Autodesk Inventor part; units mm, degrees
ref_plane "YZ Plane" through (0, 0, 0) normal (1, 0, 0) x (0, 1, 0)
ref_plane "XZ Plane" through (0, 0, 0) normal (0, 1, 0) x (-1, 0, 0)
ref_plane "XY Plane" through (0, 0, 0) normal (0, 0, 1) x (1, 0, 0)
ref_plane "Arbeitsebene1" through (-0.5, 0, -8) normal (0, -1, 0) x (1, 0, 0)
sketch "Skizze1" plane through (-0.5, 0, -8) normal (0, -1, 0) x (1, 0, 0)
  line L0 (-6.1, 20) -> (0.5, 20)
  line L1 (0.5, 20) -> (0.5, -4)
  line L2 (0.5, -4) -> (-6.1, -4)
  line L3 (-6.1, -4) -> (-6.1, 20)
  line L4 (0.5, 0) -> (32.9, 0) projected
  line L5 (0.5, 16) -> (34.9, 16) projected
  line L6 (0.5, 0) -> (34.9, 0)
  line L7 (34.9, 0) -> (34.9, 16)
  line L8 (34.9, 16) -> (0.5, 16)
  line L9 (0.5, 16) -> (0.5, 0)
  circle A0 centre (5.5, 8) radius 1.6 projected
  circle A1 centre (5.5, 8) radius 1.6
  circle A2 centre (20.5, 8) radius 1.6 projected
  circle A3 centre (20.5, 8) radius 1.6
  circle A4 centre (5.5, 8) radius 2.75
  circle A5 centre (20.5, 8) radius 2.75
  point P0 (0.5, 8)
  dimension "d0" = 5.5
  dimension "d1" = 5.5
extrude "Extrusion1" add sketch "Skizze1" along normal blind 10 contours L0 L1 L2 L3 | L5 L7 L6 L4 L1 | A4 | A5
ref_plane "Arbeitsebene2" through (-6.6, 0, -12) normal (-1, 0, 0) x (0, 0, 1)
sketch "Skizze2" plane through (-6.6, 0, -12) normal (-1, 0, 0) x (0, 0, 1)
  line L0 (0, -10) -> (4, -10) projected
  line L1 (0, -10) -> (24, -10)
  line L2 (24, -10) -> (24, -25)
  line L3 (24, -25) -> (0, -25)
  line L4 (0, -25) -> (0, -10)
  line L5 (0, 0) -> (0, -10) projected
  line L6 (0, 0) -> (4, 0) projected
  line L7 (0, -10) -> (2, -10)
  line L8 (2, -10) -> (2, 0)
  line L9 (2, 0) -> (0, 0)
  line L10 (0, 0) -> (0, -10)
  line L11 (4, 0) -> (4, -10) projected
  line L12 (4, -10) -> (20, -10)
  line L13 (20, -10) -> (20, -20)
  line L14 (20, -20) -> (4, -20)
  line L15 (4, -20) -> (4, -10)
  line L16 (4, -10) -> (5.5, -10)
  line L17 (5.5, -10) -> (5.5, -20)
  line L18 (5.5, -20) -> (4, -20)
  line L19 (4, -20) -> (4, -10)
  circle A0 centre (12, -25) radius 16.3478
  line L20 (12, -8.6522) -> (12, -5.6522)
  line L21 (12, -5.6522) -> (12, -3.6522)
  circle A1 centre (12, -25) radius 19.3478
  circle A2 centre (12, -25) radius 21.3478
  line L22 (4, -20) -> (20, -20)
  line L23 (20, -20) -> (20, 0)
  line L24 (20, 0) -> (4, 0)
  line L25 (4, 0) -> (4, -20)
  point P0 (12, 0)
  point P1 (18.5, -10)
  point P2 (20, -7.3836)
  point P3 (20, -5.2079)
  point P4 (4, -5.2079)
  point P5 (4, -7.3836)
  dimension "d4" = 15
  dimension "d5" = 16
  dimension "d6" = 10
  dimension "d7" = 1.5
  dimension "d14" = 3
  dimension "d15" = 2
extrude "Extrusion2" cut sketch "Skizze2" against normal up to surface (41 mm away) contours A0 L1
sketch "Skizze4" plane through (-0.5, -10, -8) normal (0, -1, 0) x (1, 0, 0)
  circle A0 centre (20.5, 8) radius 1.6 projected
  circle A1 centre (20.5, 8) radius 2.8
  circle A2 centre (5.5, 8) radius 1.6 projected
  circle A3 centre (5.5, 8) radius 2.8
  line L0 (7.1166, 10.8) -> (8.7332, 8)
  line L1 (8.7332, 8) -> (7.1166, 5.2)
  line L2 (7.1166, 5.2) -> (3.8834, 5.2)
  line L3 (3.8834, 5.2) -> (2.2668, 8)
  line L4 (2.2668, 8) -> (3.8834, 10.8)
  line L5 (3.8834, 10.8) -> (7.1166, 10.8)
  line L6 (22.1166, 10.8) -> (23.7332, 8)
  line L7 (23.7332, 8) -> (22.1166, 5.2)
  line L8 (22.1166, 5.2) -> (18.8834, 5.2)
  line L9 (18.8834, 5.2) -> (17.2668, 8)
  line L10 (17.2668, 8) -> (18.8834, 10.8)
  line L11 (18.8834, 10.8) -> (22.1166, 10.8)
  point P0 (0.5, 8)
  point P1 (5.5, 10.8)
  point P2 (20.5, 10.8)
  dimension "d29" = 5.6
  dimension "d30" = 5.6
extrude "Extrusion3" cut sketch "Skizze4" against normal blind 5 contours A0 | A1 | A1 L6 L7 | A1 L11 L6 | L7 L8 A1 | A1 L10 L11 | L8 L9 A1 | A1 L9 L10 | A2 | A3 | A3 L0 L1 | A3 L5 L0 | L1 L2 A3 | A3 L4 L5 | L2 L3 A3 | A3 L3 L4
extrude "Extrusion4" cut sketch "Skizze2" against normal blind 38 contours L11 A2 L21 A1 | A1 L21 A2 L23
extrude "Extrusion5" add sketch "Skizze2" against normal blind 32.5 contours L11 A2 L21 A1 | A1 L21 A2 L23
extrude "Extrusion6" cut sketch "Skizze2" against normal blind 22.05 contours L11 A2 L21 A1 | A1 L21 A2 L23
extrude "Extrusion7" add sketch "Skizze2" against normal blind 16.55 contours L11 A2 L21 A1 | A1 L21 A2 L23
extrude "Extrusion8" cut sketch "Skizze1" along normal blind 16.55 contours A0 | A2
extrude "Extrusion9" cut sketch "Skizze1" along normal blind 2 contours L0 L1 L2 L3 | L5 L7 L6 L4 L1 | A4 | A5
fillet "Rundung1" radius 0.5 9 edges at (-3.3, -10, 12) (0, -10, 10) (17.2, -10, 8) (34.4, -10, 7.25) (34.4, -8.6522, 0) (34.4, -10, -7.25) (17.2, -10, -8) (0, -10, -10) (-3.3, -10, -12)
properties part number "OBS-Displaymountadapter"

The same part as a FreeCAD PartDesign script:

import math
import FreeCAD as App
import Part
import Sketcher
from FreeCAD import Vector
Q = App.Units.Quantity


def edges_at(feature, points):
    """Names of the edges that pass closest to the given points."""
    edges = feature.Shape.Edges
    near = lambda p: min(range(len(edges)), key=lambda i: edges[i].distToShape(Part.Vertex(*p))[0])
    return sorted({f"Edge{near(p) + 1}" for p in points})


def add_polygon(sketch, points):
    """Adds a closed chain of lines whose ends are joined by coincident constraints."""
    first, n = sketch.GeometryCount, len(points)
    for a, b in zip(points, points[1:] + points[:1]):
        sketch.addGeometry(Part.LineSegment(App.Vector(*a, 0), App.Vector(*b, 0)), False)
    for i in range(n):
        sketch.addConstraint(Sketcher.Constraint("Coincident", first + i, 2, first + (i + 1) % n, 1))

doc = App.newDocument("Part")
params = doc.addObject("Spreadsheet::Sheet", "Params")
for row, (alias, value) in enumerate([
    ("sketch1_diameter", "3.2 mm"),
    ("sketch1_height", "24 mm"),
    ("sketch1_height2", "4 mm"),
    ("sketch1_width", "6.6 mm"),
    ("sketch1_width2", "34.4 mm"),
    ("pad1_length", "10 mm"),
    ("sketch2_width", "15 mm"),
    ("sketch2_height", "13 mm"),
    ("pocket1_length", "41 mm"),
    ("pocket2_length", "5 mm"),
    ("pocket3_length", "38 mm"),
    ("pad2_length", "32.5 mm"),
    ("pocket4_length", "22.05 mm"),
    ("pad3_length", "16.55 mm"),
    ("sketch8_diameter", "3.2 mm"),
    ("pocket5_length", "16.55 mm"),
    ("sketch9_diameter", "3.2 mm"),
    ("sketch9_height", "24 mm"),
    ("sketch9_height2", "4 mm"),
    ("sketch9_width", "6.6 mm"),
    ("sketch9_width2", "34.4 mm"),
    ("pocket6_length", "2 mm"),
    ("fillet_radius", "0.5 mm"),
], start=1):
    params.set(f"A{row}", alias)
    params.set(f"B{row}", "=" + value)
    params.setAlias(f"B{row}", alias)

body = doc.addObject("PartDesign::Body", "Body")

sketch1 = body.newObject("Sketcher::SketchObject", "Sketch")
sketch1.AttachmentSupport = (doc.getObject("XZ_Plane"), [""])
sketch1.MapMode = "FlatFace"
add_polygon(sketch1, [(0, 12), (-6.6, 12), (-6.6, -12), (0, -12), (0, -8), (34.4, -8), (34.4, 8), (0, 8)])
sketch1.addGeometry(Part.Circle(Vector(20, 0, 0), Vector(0, 0, 1), 1.6), False)
sketch1.addGeometry(Part.Circle(Vector(5, 0, 0), Vector(0, 0, 1), 1.6), False)
sketch1.addConstraint(Sketcher.Constraint("Horizontal", 0))
sketch1.addConstraint(Sketcher.Constraint("Vertical", 1))
sketch1.addConstraint(Sketcher.Constraint("Horizontal", 2))
sketch1.addConstraint(Sketcher.Constraint("Vertical", 3))
sketch1.addConstraint(Sketcher.Constraint("Horizontal", 4))
sketch1.addConstraint(Sketcher.Constraint("Vertical", 5))
sketch1.addConstraint(Sketcher.Constraint("Horizontal", 6))
sketch1.addConstraint(Sketcher.Constraint("Vertical", 7))
sketch1.addConstraint(Sketcher.Constraint("Equal", 8, 9))
sketch1.addConstraint(Sketcher.Constraint("Symmetric", 3, 2, 6, 2, -1, 1))
sketch1.addConstraint(Sketcher.Constraint("Symmetric", 2, 2, 7, 2, -1))
sketch1.addConstraint(Sketcher.Constraint("PointOnObject", 8, 3, -1))
sketch1.addConstraint(Sketcher.Constraint("PointOnObject", 9, 3, -1))
sketch1.addConstraint(Sketcher.Constraint("Diameter", 8, 3.2))
sketch1.addConstraint(Sketcher.Constraint("DistanceY", 1, 2, 1, 1, 24.0))
sketch1.addConstraint(Sketcher.Constraint("DistanceY", 3, 1, 3, 2, 4.0))
sketch1.addConstraint(Sketcher.Constraint("DistanceX", 0, 2, 0, 1, 6.6))
sketch1.addConstraint(Sketcher.Constraint("DistanceX", 4, 1, 4, 2, 34.4))
sketch1.addConstraint(Sketcher.Constraint("DistanceX", -1, 1, 8, 3, 20.0))
sketch1.addConstraint(Sketcher.Constraint("DistanceX", -1, 1, 9, 3, 5.0))
sketch1.setExpression("Constraints[21]", "Params.sketch1_diameter")
sketch1.setExpression("Constraints[22]", "Params.sketch1_height")
sketch1.setExpression("Constraints[23]", "Params.sketch1_height2")
sketch1.setExpression("Constraints[24]", "Params.sketch1_width")
sketch1.setExpression("Constraints[25]", "Params.sketch1_width2")
pad1 = body.newObject("PartDesign::Pad", "Pad")
pad1.Profile = sketch1
pad1.setExpression("Length", "Params.pad1_length")

sketch2 = body.newObject("Sketcher::SketchObject", "Sketch001")
sketch2.AttachmentSupport = (doc.getObject("YZ_Plane"), [""])
sketch2.MapMode = "FlatFace"
sketch2.AttachmentOffset = App.Placement(Vector(0, 0, -6.6), App.Rotation())
sketch2.addGeometry(Part.ArcOfCircle(Part.Circle(Vector(-25, 0, 0), Vector(0, 0, 1), 16), math.radians(-23), math.radians(23)), False)
sketch2.addGeometry(Part.LineSegment(Vector(-10, 7, 0), Vector(-10, -6, 0)), False)
sketch2.addConstraint(Sketcher.Constraint("Coincident", 0, 1, 1, 2))
sketch2.addConstraint(Sketcher.Constraint("Coincident", 1, 1, 0, 2))
sketch2.addConstraint(Sketcher.Constraint("Vertical", 1))
sketch2.addConstraint(Sketcher.Constraint("PointOnObject", 0, 3, -1))
sketch2.addConstraint(Sketcher.Constraint("DistanceX", 0, 1, -1, 1, 10.0))
sketch2.addConstraint(Sketcher.Constraint("DistanceX", 0, 3, 0, 1, 15.0))
sketch2.addConstraint(Sketcher.Constraint("DistanceY", 1, 2, 1, 1, 13.0))
sketch2.setExpression("Constraints[5]", "Params.sketch2_width")
sketch2.setExpression("Constraints[6]", "Params.sketch2_height")
pocket1 = body.newObject("PartDesign::Pocket", "Pocket")
pocket1.Profile = sketch2
pocket1.setExpression("Length", "Params.pocket1_length")
pocket1.Reversed = True

sketch3 = body.newObject("Sketcher::SketchObject", "Sketch002")
sketch3.AttachmentSupport = (doc.getObject("XZ_Plane"), [""])
sketch3.MapMode = "FlatFace"
sketch3.AttachmentOffset = App.Placement(Vector(0, 0, 10), App.Rotation())
add_polygon(sketch3, [(23.2, 0), (21.6, 2.8), (18.4, 2.8), (16.8, 0), (18.4, -2.8), (21.6, -2.8)])
add_polygon(sketch3, [(8.2, 0), (6.6, 2.8), (3.4, 2.8), (1.8, 0), (3.4, -2.8), (6.6, -2.8)])
sketch3.addConstraint(Sketcher.Constraint("Horizontal", 1))
sketch3.addConstraint(Sketcher.Constraint("Horizontal", 4))
sketch3.addConstraint(Sketcher.Constraint("Horizontal", 7))
sketch3.addConstraint(Sketcher.Constraint("Horizontal", 10))
sketch3.addConstraint(Sketcher.Constraint("Symmetric", 1, 2, 3, 2, -1))
sketch3.addConstraint(Sketcher.Constraint("Symmetric", 7, 2, 9, 2, -1))
sketch3.addConstraint(Sketcher.Constraint("PointOnObject", 2, 2, -1))
sketch3.addConstraint(Sketcher.Constraint("PointOnObject", 5, 2, -1))
sketch3.addConstraint(Sketcher.Constraint("PointOnObject", 8, 2, -1))
sketch3.addConstraint(Sketcher.Constraint("PointOnObject", 11, 2, -1))
sketch3.addConstraint(Sketcher.Constraint("Parallel", 0, 3))
sketch3.addConstraint(Sketcher.Constraint("Parallel", 2, 5))
sketch3.addConstraint(Sketcher.Constraint("Parallel", 3, 6))
sketch3.addConstraint(Sketcher.Constraint("Parallel", 5, 8))
sketch3.addConstraint(Sketcher.Constraint("Parallel", 8, 11))
sketch3.addConstraint(Sketcher.Constraint("Horizontal", 1, 2, 6, 2))
sketch3.addConstraint(Sketcher.Constraint("Equal", 4, 7))
sketch3.addConstraint(Sketcher.Constraint("DistanceY", 3, 2, 1, 2, 5.6))
sketch3.addConstraint(Sketcher.Constraint("Angle", 0, Q("120.0003 deg")))
sketch3.addConstraint(Sketcher.Constraint("DistanceX", 6, 2, 0, 2, 15.0))
sketch3.addConstraint(Sketcher.Constraint("DistanceX", 1, 2, 1, 1, 3.2332))
sketch3.addConstraint(Sketcher.Constraint("DistanceX", -1, 1, 0, 2, 21.6166))
pocket2 = body.newObject("PartDesign::Pocket", "Pocket001")
pocket2.Profile = sketch3
pocket2.setExpression("Length", "Params.pocket2_length")

sketch4 = body.newObject("Sketcher::SketchObject", "Sketch003")
sketch4.AttachmentSupport = (doc.getObject("YZ_Plane"), [""])
sketch4.MapMode = "FlatFace"
sketch4.AttachmentOffset = App.Placement(Vector(0, 0, -6.6), App.Rotation())
sketch4.addGeometry(Part.LineSegment(Vector(-5.2, -8, 0), Vector(-7.4, -8, 0)), False)
sketch4.addGeometry(Part.ArcOfCircle(Part.Circle(Vector(-25, 0, 0), Vector(0, 0, 1), 19.3), math.radians(-24), math.radians(24)), False)
sketch4.addGeometry(Part.LineSegment(Vector(-7.4, 8, 0), Vector(-5.2, 8, 0)), False)
sketch4.addGeometry(Part.ArcOfCircle(Part.Circle(Vector(-25, 0, 0), Vector(0, 0, 1), 21.3), math.radians(-22), math.radians(22)), False)
sketch4.addConstraint(Sketcher.Constraint("Coincident", 0, 2, 1, 1))
sketch4.addConstraint(Sketcher.Constraint("Coincident", 1, 2, 2, 1))
sketch4.addConstraint(Sketcher.Constraint("Coincident", 2, 2, 3, 2))
sketch4.addConstraint(Sketcher.Constraint("Coincident", 3, 1, 0, 1))
sketch4.addConstraint(Sketcher.Constraint("Horizontal", 0))
sketch4.addConstraint(Sketcher.Constraint("Horizontal", 2))
sketch4.addConstraint(Sketcher.Constraint("Coincident", 3, 3, 1, 3))
sketch4.addConstraint(Sketcher.Constraint("Symmetric", 0, 2, 1, 2, -1))
sketch4.addConstraint(Sketcher.Constraint("DistanceY", 0, 2, 1, 2, 16.0))
sketch4.addConstraint(Sketcher.Constraint("DistanceX", 1, 3, -1, 1, 25.0))
sketch4.addConstraint(Sketcher.Constraint("Radius", 1, 19.3478))
sketch4.addConstraint(Sketcher.Constraint("Radius", 3, 21.3478))
pocket3 = body.newObject("PartDesign::Pocket", "Pocket002")
pocket3.Profile = sketch4
pocket3.setExpression("Length", "Params.pocket3_length")
pocket3.Reversed = True

sketch5 = body.newObject("Sketcher::SketchObject", "Sketch004")
sketch5.AttachmentSupport = (doc.getObject("YZ_Plane"), [""])
sketch5.MapMode = "FlatFace"
sketch5.AttachmentOffset = App.Placement(Vector(0, 0, -6.6), App.Rotation())
sketch5.addGeometry(Part.LineSegment(Vector(-5.2, -8, 0), Vector(-7.4, -8, 0)), False)
sketch5.addGeometry(Part.ArcOfCircle(Part.Circle(Vector(-25, 0, 0), Vector(0, 0, 1), 19.3), math.radians(-24), math.radians(24)), False)
sketch5.addGeometry(Part.LineSegment(Vector(-7.4, 8, 0), Vector(-5.2, 8, 0)), False)
sketch5.addGeometry(Part.ArcOfCircle(Part.Circle(Vector(-25, 0, 0), Vector(0, 0, 1), 21.3), math.radians(-22), math.radians(22)), False)
sketch5.addConstraint(Sketcher.Constraint("Coincident", 0, 2, 1, 1))
sketch5.addConstraint(Sketcher.Constraint("Coincident", 1, 2, 2, 1))
sketch5.addConstraint(Sketcher.Constraint("Coincident", 2, 2, 3, 2))
sketch5.addConstraint(Sketcher.Constraint("Coincident", 3, 1, 0, 1))
sketch5.addConstraint(Sketcher.Constraint("Horizontal", 0))
sketch5.addConstraint(Sketcher.Constraint("Horizontal", 2))
sketch5.addConstraint(Sketcher.Constraint("Coincident", 3, 3, 1, 3))
sketch5.addConstraint(Sketcher.Constraint("Symmetric", 0, 2, 1, 2, -1))
sketch5.addConstraint(Sketcher.Constraint("DistanceY", 0, 2, 1, 2, 16.0))
sketch5.addConstraint(Sketcher.Constraint("DistanceX", 1, 3, -1, 1, 25.0))
sketch5.addConstraint(Sketcher.Constraint("Radius", 1, 19.3478))
sketch5.addConstraint(Sketcher.Constraint("Radius", 3, 21.3478))
pad2 = body.newObject("PartDesign::Pad", "Pad001")
pad2.Profile = sketch5
pad2.setExpression("Length", "Params.pad2_length")

sketch6 = body.newObject("Sketcher::SketchObject", "Sketch005")
sketch6.AttachmentSupport = (doc.getObject("YZ_Plane"), [""])
sketch6.MapMode = "FlatFace"
sketch6.AttachmentOffset = App.Placement(Vector(0, 0, -6.6), App.Rotation())
sketch6.addGeometry(Part.LineSegment(Vector(-5.2, -8, 0), Vector(-7.4, -8, 0)), False)
sketch6.addGeometry(Part.ArcOfCircle(Part.Circle(Vector(-25, 0, 0), Vector(0, 0, 1), 19.3), math.radians(-24), math.radians(24)), False)
sketch6.addGeometry(Part.LineSegment(Vector(-7.4, 8, 0), Vector(-5.2, 8, 0)), False)
sketch6.addGeometry(Part.ArcOfCircle(Part.Circle(Vector(-25, 0, 0), Vector(0, 0, 1), 21.3), math.radians(-22), math.radians(22)), False)
sketch6.addConstraint(Sketcher.Constraint("Coincident", 0, 2, 1, 1))
sketch6.addConstraint(Sketcher.Constraint("Coincident", 1, 2, 2, 1))
sketch6.addConstraint(Sketcher.Constraint("Coincident", 2, 2, 3, 2))
sketch6.addConstraint(Sketcher.Constraint("Coincident", 3, 1, 0, 1))
sketch6.addConstraint(Sketcher.Constraint("Horizontal", 0))
sketch6.addConstraint(Sketcher.Constraint("Horizontal", 2))
sketch6.addConstraint(Sketcher.Constraint("Coincident", 3, 3, 1, 3))
sketch6.addConstraint(Sketcher.Constraint("Symmetric", 0, 2, 1, 2, -1))
sketch6.addConstraint(Sketcher.Constraint("DistanceY", 0, 2, 1, 2, 16.0))
sketch6.addConstraint(Sketcher.Constraint("DistanceX", 1, 3, -1, 1, 25.0))
sketch6.addConstraint(Sketcher.Constraint("Radius", 1, 19.3478))
sketch6.addConstraint(Sketcher.Constraint("Radius", 3, 21.3478))
pocket4 = body.newObject("PartDesign::Pocket", "Pocket003")
pocket4.Profile = sketch6
pocket4.setExpression("Length", "Params.pocket4_length")
pocket4.Reversed = True

sketch7 = body.newObject("Sketcher::SketchObject", "Sketch006")
sketch7.AttachmentSupport = (doc.getObject("YZ_Plane"), [""])
sketch7.MapMode = "FlatFace"
sketch7.AttachmentOffset = App.Placement(Vector(0, 0, -6.6), App.Rotation())
sketch7.addGeometry(Part.LineSegment(Vector(-5.2, -8, 0), Vector(-7.4, -8, 0)), False)
sketch7.addGeometry(Part.ArcOfCircle(Part.Circle(Vector(-25, 0, 0), Vector(0, 0, 1), 19.3), math.radians(-24), math.radians(24)), False)
sketch7.addGeometry(Part.LineSegment(Vector(-7.4, 8, 0), Vector(-5.2, 8, 0)), False)
sketch7.addGeometry(Part.ArcOfCircle(Part.Circle(Vector(-25, 0, 0), Vector(0, 0, 1), 21.3), math.radians(-22), math.radians(22)), False)
sketch7.addConstraint(Sketcher.Constraint("Coincident", 0, 2, 1, 1))
sketch7.addConstraint(Sketcher.Constraint("Coincident", 1, 2, 2, 1))
sketch7.addConstraint(Sketcher.Constraint("Coincident", 2, 2, 3, 2))
sketch7.addConstraint(Sketcher.Constraint("Coincident", 3, 1, 0, 1))
sketch7.addConstraint(Sketcher.Constraint("Horizontal", 0))
sketch7.addConstraint(Sketcher.Constraint("Horizontal", 2))
sketch7.addConstraint(Sketcher.Constraint("Coincident", 3, 3, 1, 3))
sketch7.addConstraint(Sketcher.Constraint("Symmetric", 0, 2, 1, 2, -1))
sketch7.addConstraint(Sketcher.Constraint("DistanceY", 0, 2, 1, 2, 16.0))
sketch7.addConstraint(Sketcher.Constraint("DistanceX", 1, 3, -1, 1, 25.0))
sketch7.addConstraint(Sketcher.Constraint("Radius", 1, 19.3478))
sketch7.addConstraint(Sketcher.Constraint("Radius", 3, 21.3478))
pad3 = body.newObject("PartDesign::Pad", "Pad002")
pad3.Profile = sketch7
pad3.setExpression("Length", "Params.pad3_length")

sketch8 = body.newObject("Sketcher::SketchObject", "Sketch007")
sketch8.AttachmentSupport = (doc.getObject("XZ_Plane"), [""])
sketch8.MapMode = "FlatFace"
sketch8.addGeometry(Part.Circle(Vector(5, 0, 0), Vector(0, 0, 1), 1.6), False)
sketch8.addGeometry(Part.Circle(Vector(20, 0, 0), Vector(0, 0, 1), 1.6), False)
sketch8.addConstraint(Sketcher.Constraint("Equal", 0, 1))
sketch8.addConstraint(Sketcher.Constraint("PointOnObject", 0, 3, -1))
sketch8.addConstraint(Sketcher.Constraint("PointOnObject", 1, 3, -1))
sketch8.addConstraint(Sketcher.Constraint("Diameter", 0, 3.2))
sketch8.addConstraint(Sketcher.Constraint("DistanceX", -1, 1, 0, 3, 5.0))
sketch8.addConstraint(Sketcher.Constraint("DistanceX", -1, 1, 1, 3, 20.0))
sketch8.setExpression("Constraints[3]", "Params.sketch8_diameter")
pocket5 = body.newObject("PartDesign::Pocket", "Pocket004")
pocket5.Profile = sketch8
pocket5.setExpression("Length", "Params.pocket5_length")
pocket5.Reversed = True

sketch9 = body.newObject("Sketcher::SketchObject", "Sketch008")
sketch9.AttachmentSupport = (doc.getObject("XZ_Plane"), [""])
sketch9.MapMode = "FlatFace"
add_polygon(sketch9, [(0, 12), (-6.6, 12), (-6.6, -12), (0, -12), (0, -8), (34.4, -8), (34.4, 8), (0, 8)])
sketch9.addGeometry(Part.Circle(Vector(20, 0, 0), Vector(0, 0, 1), 1.6), False)
sketch9.addGeometry(Part.Circle(Vector(5, 0, 0), Vector(0, 0, 1), 1.6), False)
sketch9.addConstraint(Sketcher.Constraint("Horizontal", 0))
sketch9.addConstraint(Sketcher.Constraint("Vertical", 1))
sketch9.addConstraint(Sketcher.Constraint("Horizontal", 2))
sketch9.addConstraint(Sketcher.Constraint("Vertical", 3))
sketch9.addConstraint(Sketcher.Constraint("Horizontal", 4))
sketch9.addConstraint(Sketcher.Constraint("Vertical", 5))
sketch9.addConstraint(Sketcher.Constraint("Horizontal", 6))
sketch9.addConstraint(Sketcher.Constraint("Vertical", 7))
sketch9.addConstraint(Sketcher.Constraint("Equal", 8, 9))
sketch9.addConstraint(Sketcher.Constraint("Symmetric", 3, 2, 6, 2, -1, 1))
sketch9.addConstraint(Sketcher.Constraint("Symmetric", 2, 2, 7, 2, -1))
sketch9.addConstraint(Sketcher.Constraint("PointOnObject", 8, 3, -1))
sketch9.addConstraint(Sketcher.Constraint("PointOnObject", 9, 3, -1))
sketch9.addConstraint(Sketcher.Constraint("Diameter", 8, 3.2))
sketch9.addConstraint(Sketcher.Constraint("DistanceY", 1, 2, 1, 1, 24.0))
sketch9.addConstraint(Sketcher.Constraint("DistanceY", 3, 1, 3, 2, 4.0))
sketch9.addConstraint(Sketcher.Constraint("DistanceX", 0, 2, 0, 1, 6.6))
sketch9.addConstraint(Sketcher.Constraint("DistanceX", 4, 1, 4, 2, 34.4))
sketch9.addConstraint(Sketcher.Constraint("DistanceX", -1, 1, 8, 3, 20.0))
sketch9.addConstraint(Sketcher.Constraint("DistanceX", -1, 1, 9, 3, 5.0))
sketch9.setExpression("Constraints[21]", "Params.sketch9_diameter")
sketch9.setExpression("Constraints[22]", "Params.sketch9_height")
sketch9.setExpression("Constraints[23]", "Params.sketch9_height2")
sketch9.setExpression("Constraints[24]", "Params.sketch9_width")
sketch9.setExpression("Constraints[25]", "Params.sketch9_width2")
pocket6 = body.newObject("PartDesign::Pocket", "Pocket005")
pocket6.Profile = sketch9
pocket6.setExpression("Length", "Params.pocket6_length")
pocket6.Reversed = True
doc.recompute()

fillet = body.newObject("PartDesign::Fillet", "Fillet")
fillet.Base = (pocket6, edges_at(pocket6, [
    (-3.3, -10, 12),
    (0, -10, 10),
    (17.2, -10, 8),
    (34.4, -10, 7.25),
    (34.4, -8.652, 0),
    (34.4, -10, -7.25),
    (17.2, -10, -8),
    (0, -10, -10),
    (-3.3, -10, -12),
]))
fillet.setExpression("Radius", "Params.fillet_radius")

doc.recompute()
